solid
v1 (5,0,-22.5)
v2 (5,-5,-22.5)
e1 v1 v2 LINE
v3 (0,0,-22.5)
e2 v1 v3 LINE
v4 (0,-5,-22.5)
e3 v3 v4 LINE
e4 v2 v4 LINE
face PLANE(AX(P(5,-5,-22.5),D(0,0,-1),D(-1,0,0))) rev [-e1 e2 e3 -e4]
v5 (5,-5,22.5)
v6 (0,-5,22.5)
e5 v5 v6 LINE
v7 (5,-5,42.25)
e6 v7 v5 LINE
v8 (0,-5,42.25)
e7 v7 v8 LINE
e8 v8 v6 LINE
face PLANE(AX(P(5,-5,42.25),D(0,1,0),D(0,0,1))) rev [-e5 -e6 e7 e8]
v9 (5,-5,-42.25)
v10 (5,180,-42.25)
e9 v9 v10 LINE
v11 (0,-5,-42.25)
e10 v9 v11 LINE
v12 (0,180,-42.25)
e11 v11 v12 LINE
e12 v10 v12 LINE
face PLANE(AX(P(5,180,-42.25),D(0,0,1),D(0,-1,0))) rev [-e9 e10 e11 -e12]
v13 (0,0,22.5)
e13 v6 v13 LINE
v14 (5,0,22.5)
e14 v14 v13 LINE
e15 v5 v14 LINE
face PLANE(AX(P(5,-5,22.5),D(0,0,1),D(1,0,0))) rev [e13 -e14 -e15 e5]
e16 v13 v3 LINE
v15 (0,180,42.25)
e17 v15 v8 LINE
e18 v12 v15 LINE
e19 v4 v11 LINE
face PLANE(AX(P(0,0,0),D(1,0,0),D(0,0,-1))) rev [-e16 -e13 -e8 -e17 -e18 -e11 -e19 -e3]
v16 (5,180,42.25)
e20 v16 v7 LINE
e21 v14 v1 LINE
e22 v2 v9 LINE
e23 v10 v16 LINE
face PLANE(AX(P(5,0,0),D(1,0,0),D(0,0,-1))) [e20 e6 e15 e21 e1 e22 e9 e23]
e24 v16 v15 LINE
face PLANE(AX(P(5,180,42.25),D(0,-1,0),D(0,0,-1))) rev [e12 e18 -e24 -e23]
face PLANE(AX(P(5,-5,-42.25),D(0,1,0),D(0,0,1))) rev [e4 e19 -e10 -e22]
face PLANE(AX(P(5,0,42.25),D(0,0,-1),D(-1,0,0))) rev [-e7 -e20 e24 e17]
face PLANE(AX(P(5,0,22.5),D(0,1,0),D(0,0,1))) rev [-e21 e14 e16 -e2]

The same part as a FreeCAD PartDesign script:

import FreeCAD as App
import Part
import Sketcher

V = App.Vector
Q = App.Units.Quantity

doc = App.newDocument("Part")
body = doc.addObject("PartDesign::Body", "Body")

sketch1 = body.newObject("Sketcher::SketchObject", "Sketch")
sketch1.AttachmentSupport = (doc.getObject("YZ_Plane"), [""])
sketch1.MapMode = "FlatFace"
sketch1.addGeometry([
    Part.LineSegment(V(180, -42, 0), V(180, 42, 0)),
    Part.LineSegment(V(180, 42, 0), V(-5, 42, 0)),
    Part.LineSegment(V(-5, 42, 0), V(-5, 22, 0)),
    Part.LineSegment(V(-5, 22, 0), V(0, 22, 0)),
    Part.LineSegment(V(0, 22, 0), V(0, -22, 0)),
    Part.LineSegment(V(0, -22, 0), V(-5, -22, 0)),
    Part.LineSegment(V(-5, -22, 0), V(-5, -42, 0)),
    Part.LineSegment(V(-5, -42, 0), V(180, -42, 0)),
], False)
sketch1.addConstraint([
    Sketcher.Constraint("Coincident", 0, 2, 1, 1),
    Sketcher.Constraint("Coincident", 1, 2, 2, 1),
    Sketcher.Constraint("Coincident", 2, 2, 3, 1),
    Sketcher.Constraint("Coincident", 3, 2, 4, 1),
    Sketcher.Constraint("Coincident", 4, 2, 5, 1),
    Sketcher.Constraint("Coincident", 5, 2, 6, 1),
    Sketcher.Constraint("Coincident", 6, 2, 7, 1),
    Sketcher.Constraint("Coincident", 7, 2, 0, 1),
    Sketcher.Constraint("Vertical", 0),
    Sketcher.Constraint("Horizontal", 1),
    Sketcher.Constraint("Vertical", 2),
    Sketcher.Constraint("Horizontal", 3),
    Sketcher.Constraint("Vertical", 4),
    Sketcher.Constraint("Horizontal", 5),
    Sketcher.Constraint("Vertical", 6),
    Sketcher.Constraint("Horizontal", 7),
    Sketcher.Constraint("Symmetric", 3, 2, 4, 2, -1, 1),
    Sketcher.Constraint("Symmetric", 1, 2, 6, 2, -1),
    Sketcher.Constraint("DistanceX", 1, 2, 1, 1, Q("185 mm")),
    Sketcher.Constraint("DistanceX", 3, 1, 3, 2, Q("5 mm")),
    Sketcher.Constraint("DistanceY", 4, 2, 4, 1, Q("45 mm")),
    Sketcher.Constraint("DistanceY", 0, 1, 0, 2, Q("84.5 mm")),
])
pad1 = body.newObject("PartDesign::Pad", "Pad")
pad1.Profile = sketch1
pad1.Length = 5

doc.recompute()
